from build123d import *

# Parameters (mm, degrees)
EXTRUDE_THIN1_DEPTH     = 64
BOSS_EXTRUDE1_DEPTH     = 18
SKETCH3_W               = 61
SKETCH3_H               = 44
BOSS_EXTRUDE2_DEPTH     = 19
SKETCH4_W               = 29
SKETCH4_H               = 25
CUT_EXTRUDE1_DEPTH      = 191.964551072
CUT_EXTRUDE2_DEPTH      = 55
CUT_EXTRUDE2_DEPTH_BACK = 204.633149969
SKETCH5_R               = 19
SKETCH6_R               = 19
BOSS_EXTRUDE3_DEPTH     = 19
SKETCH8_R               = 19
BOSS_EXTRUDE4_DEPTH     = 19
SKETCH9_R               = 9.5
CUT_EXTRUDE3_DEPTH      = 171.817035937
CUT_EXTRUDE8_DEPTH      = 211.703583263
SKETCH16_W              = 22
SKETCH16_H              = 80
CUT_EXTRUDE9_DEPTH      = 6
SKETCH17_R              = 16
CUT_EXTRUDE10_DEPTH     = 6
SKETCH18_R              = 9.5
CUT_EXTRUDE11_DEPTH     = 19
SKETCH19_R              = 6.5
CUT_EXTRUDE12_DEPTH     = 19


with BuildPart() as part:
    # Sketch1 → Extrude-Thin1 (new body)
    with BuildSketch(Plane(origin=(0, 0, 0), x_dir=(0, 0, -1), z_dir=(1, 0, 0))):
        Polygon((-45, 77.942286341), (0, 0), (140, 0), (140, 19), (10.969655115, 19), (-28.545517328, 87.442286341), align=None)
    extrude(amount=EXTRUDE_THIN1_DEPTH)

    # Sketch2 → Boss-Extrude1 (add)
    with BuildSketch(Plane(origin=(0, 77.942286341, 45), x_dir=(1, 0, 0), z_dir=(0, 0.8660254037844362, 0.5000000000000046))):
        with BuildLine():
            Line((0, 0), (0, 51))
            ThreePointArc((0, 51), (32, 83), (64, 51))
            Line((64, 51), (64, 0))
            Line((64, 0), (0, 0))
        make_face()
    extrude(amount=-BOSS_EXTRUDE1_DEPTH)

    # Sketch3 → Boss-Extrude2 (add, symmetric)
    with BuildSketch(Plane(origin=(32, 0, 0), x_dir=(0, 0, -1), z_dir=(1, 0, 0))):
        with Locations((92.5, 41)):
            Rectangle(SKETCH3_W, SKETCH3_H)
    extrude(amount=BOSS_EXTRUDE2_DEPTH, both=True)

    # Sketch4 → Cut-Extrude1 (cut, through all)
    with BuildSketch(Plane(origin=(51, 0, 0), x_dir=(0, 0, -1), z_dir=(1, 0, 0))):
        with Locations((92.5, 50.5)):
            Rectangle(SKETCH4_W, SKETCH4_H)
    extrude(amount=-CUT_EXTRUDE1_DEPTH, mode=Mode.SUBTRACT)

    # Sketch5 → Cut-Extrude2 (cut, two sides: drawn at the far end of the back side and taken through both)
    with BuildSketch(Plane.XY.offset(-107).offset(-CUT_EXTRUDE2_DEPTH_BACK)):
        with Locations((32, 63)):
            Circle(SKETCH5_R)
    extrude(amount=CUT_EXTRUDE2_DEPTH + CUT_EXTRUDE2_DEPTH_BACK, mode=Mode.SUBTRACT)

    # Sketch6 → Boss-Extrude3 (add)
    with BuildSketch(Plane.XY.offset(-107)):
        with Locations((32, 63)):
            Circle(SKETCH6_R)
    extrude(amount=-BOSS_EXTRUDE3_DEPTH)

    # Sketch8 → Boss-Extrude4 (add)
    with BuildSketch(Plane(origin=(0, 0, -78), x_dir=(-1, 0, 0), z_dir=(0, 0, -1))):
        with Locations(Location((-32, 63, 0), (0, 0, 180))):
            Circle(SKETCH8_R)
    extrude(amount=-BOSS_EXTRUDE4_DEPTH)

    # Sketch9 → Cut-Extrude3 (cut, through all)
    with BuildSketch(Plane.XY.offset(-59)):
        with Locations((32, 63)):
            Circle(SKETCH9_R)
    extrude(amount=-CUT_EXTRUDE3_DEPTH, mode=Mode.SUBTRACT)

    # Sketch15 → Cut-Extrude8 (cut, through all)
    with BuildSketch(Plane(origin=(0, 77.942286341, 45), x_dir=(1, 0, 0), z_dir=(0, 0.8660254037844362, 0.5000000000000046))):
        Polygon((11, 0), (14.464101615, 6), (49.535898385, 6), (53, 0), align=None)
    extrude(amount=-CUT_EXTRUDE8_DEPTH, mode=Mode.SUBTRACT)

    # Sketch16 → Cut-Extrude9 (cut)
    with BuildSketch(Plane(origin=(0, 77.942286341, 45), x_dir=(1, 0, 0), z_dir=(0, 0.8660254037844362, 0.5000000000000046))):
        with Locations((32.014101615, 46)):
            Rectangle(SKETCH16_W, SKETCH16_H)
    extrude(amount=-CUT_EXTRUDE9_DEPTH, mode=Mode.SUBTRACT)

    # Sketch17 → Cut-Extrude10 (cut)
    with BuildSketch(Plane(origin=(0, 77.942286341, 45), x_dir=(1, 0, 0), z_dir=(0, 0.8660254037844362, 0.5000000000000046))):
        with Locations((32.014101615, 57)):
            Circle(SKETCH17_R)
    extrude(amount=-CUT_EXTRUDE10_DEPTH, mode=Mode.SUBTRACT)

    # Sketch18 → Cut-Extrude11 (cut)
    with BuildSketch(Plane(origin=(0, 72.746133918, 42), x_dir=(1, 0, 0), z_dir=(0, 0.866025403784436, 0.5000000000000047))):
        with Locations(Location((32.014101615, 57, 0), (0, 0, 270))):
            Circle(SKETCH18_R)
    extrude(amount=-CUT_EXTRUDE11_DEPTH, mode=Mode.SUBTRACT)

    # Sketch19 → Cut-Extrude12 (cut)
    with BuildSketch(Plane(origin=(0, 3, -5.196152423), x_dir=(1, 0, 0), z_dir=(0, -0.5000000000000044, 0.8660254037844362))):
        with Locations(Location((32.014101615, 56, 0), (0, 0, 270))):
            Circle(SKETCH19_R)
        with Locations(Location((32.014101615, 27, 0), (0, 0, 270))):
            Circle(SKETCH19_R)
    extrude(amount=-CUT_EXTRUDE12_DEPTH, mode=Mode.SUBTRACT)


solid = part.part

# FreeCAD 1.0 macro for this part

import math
import FreeCAD as App
import Part
import Sketcher

V = App.Vector
Q = App.Units.Quantity

doc = App.newDocument("Part")
body = doc.addObject("PartDesign::Body", "Body")

sketch1 = body.newObject("Sketcher::SketchObject", "Sketch")
sketch1.AttachmentSupport = (doc.getObject("YZ_Plane"), [""])
sketch1.MapMode = "FlatFace"
sketch1.addGeometry(Part.LineSegment(V(77.942286, 45, 0), V(0, 0, 0)), False)
sketch1.addGeometry(Part.LineSegment(V(0, 0, 0), V(0, -140, 0)), False)
sketch1.addGeometry(Part.LineSegment(V(0, -140, 0), V(19, -140, 0)), False)
sketch1.addGeometry(Part.LineSegment(V(19, -140, 0), V(19, -10.969655, 0)), False)
sketch1.addGeometry(Part.LineSegment(V(19, -10.969655, 0), V(87.442286, 28.545517, 0)), False)
sketch1.addGeometry(Part.LineSegment(V(87.442286, 28.545517, 0), V(77.942286, 45, 0)), False)
sketch1.addConstraint(Sketcher.Constraint("Coincident", 0, 2, 1, 1))
sketch1.addConstraint(Sketcher.Constraint("Coincident", 1, 2, 2, 1))
sketch1.addConstraint(Sketcher.Constraint("Coincident", 2, 2, 3, 1))
sketch1.addConstraint(Sketcher.Constraint("Coincident", 3, 2, 4, 1))
sketch1.addConstraint(Sketcher.Constraint("Coincident", 4, 2, 5, 1))
sketch1.addConstraint(Sketcher.Constraint("Coincident", 5, 2, 0, 1))
sketch1.addConstraint(Sketcher.Constraint("Vertical", 1))
sketch1.addConstraint(Sketcher.Constraint("Horizontal", 2))
sketch1.addConstraint(Sketcher.Constraint("Vertical", 3))
sketch1.addConstraint(Sketcher.Constraint("Coincident", 0, 2, -1, 1))
sketch1.addConstraint(Sketcher.Constraint("Parallel", 0, 4))
sketch1.addConstraint(Sketcher.Constraint("Perpendicular", 4, 5))
sketch1.addConstraint(Sketcher.Constraint("DistanceX", 2, 1, 2, 2, Q("19 mm")))
sketch1.addConstraint(Sketcher.Constraint("DistanceY", 1, 2, 1, 1, Q("140 mm")))
sketch1.addConstraint(Sketcher.Constraint("Angle", 0, Q("-150 deg")))
sketch1.addConstraint(Sketcher.Constraint("Distance", 0, Q("90 mm")))
sketch1.addConstraint(Sketcher.Constraint("Distance", 5, Q("19 mm")))
pad1 = body.newObject("PartDesign::Pad", "Pad")
pad1.Profile = sketch1
pad1.Length = 64

sketch2 = body.newObject("Sketcher::SketchObject", "Sketch001")
sketch2.Placement = App.Placement(V(0, 77.942286, 45), App.Rotation(V(1, 0, 0), V(0, 0.5, -0.866025404), V(0, 0.866025404, 0.5), "ZXY"))
sketch2.addGeometry(Part.LineSegment(V(0, 51, 0), V(0, 0, 0)), False)
sketch2.addGeometry(Part.LineSegment(V(0, 0, 0), V(64, 0, 0)), False)
sketch2.addGeometry(Part.LineSegment(V(64, 0, 0), V(64, 51, 0)), False)
sketch2.addGeometry(Part.ArcOfCircle(Part.Circle(V(32, 51, 0), V(0, 0, 1), 32), math.radians(0), math.radians(180)), False)
sketch2.addConstraint(Sketcher.Constraint("Coincident", 0, 2, 1, 1))
sketch2.addConstraint(Sketcher.Constraint("Coincident", 1, 2, 2, 1))
sketch2.addConstraint(Sketcher.Constraint("Tangent", 2, 2, 3, 1))
sketch2.addConstraint(Sketcher.Constraint("Tangent", 3, 2, 0, 1))
sketch2.addConstraint(Sketcher.Constraint("Vertical", 0))
sketch2.addConstraint(Sketcher.Constraint("Horizontal", 1))
sketch2.addConstraint(Sketcher.Constraint("Vertical", 2))
sketch2.addConstraint(Sketcher.Constraint("Coincident", 0, 2, -1, 1))
sketch2.addConstraint(Sketcher.Constraint("Radius", 3, Q("32 mm")))
sketch2.addConstraint(Sketcher.Constraint("DistanceY", 0, 2, 0, 1, Q("51 mm")))
pad2 = body.newObject("PartDesign::Pad", "Pad001")
pad2.Profile = sketch2
pad2.Length = 18
pad2.Reversed = True

sketch3 = body.newObject("Sketcher::SketchObject", "Sketch002")
sketch3.AttachmentSupport = (doc.getObject("YZ_Plane"), [""])
sketch3.MapMode = "FlatFace"
sketch3.AttachmentOffset = App.Placement(V(0, 0, 32), App.Rotation())
sketch3.addGeometry(Part.LineSegment(V(63, -62, 0), V(19, -62, 0)), False)
sketch3.addGeometry(Part.LineSegment(V(19, -62, 0), V(19, -123, 0)), False)
sketch3.addGeometry(Part.LineSegment(V(19, -123, 0), V(63, -123, 0)), False)
sketch3.addGeometry(Part.LineSegment(V(63, -123, 0), V(63, -62, 0)), False)
sketch3.addConstraint(Sketcher.Constraint("Coincident", 0, 2, 1, 1))
sketch3.addConstraint(Sketcher.Constraint("Coincident", 1, 2, 2, 1))
sketch3.addConstraint(Sketcher.Constraint("Coincident", 2, 2, 3, 1))
sketch3.addConstraint(Sketcher.Constraint("Coincident", 3, 2, 0, 1))
sketch3.addConstraint(Sketcher.Constraint("Horizontal", 0))
sketch3.addConstraint(Sketcher.Constraint("Vertical", 1))
sketch3.addConstraint(Sketcher.Constraint("Horizontal", 2))
sketch3.addConstraint(Sketcher.Constraint("Vertical", 3))
sketch3.addConstraint(Sketcher.Constraint("DistanceX", 0, 2, 0, 1, Q("44 mm")))
sketch3.addConstraint(Sketcher.Constraint("DistanceY", 1, 2, 1, 1, Q("61 mm")))
sketch3.addConstraint(Sketcher.Constraint("DistanceX", -1, 1, 0, 2, Q("19 mm")))
sketch3.addConstraint(Sketcher.Constraint("DistanceY", 0, 2, -1, 1, Q("62 mm")))
pad3 = body.newObject("PartDesign::Pad", "Pad002")
pad3.Profile = sketch3
pad3.Length = 38
pad3.Midplane = True

sketch4 = body.newObject("Sketcher::SketchObject", "Sketch003")
sketch4.AttachmentSupport = (doc.getObject("YZ_Plane"), [""])
sketch4.MapMode = "FlatFace"
sketch4.AttachmentOffset = App.Placement(V(0, 0, 51), App.Rotation())
sketch4.addGeometry(Part.LineSegment(V(63, -78, 0), V(38, -78, 0)), False)
sketch4.addGeometry(Part.LineSegment(V(38, -78, 0), V(38, -107, 0)), False)
sketch4.addGeometry(Part.LineSegment(V(38, -107, 0), V(63, -107, 0)), False)
sketch4.addGeometry(Part.LineSegment(V(63, -107, 0), V(63, -78, 0)), False)
sketch4.addConstraint(Sketcher.Constraint("Coincident", 0, 2, 1, 1))
sketch4.addConstraint(Sketcher.Constraint("Coincident", 1, 2, 2, 1))
sketch4.addConstraint(Sketcher.Constraint("Coincident", 2, 2, 3, 1))
sketch4.addConstraint(Sketcher.Constraint("Coincident", 3, 2, 0, 1))
sketch4.addConstraint(Sketcher.Constraint("Horizontal", 0))
sketch4.addConstraint(Sketcher.Constraint("Vertical", 1))
sketch4.addConstraint(Sketcher.Constraint("Horizontal", 2))
sketch4.addConstraint(Sketcher.Constraint("Vertical", 3))
sketch4.addConstraint(Sketcher.Constraint("DistanceX", 0, 2, 0, 1, Q("25 mm")))
sketch4.addConstraint(Sketcher.Constraint("DistanceY", 1, 2, 1, 1, Q("29 mm")))
sketch4.addConstraint(Sketcher.Constraint("DistanceX", -1, 1, 0, 2, Q("38 mm")))
sketch4.addConstraint(Sketcher.Constraint("DistanceY", 0, 2, -1, 1, Q("78 mm")))
pocket1 = body.newObject("PartDesign::Pocket", "Pocket")
pocket1.Profile = sketch4
pocket1.Type = "ThroughAll"

sketch5 = body.newObject("Sketcher::SketchObject", "Sketch004")
sketch5.AttachmentSupport = (doc.getObject("XY_Plane"), [""])
sketch5.MapMode = "FlatFace"
sketch5.AttachmentOffset = App.Placement(V(0, 0, -107), App.Rotation())
sketch5.addGeometry(Part.Circle(V(32, 63, 0), V(0, 0, 1), 19), False)
sketch5.addConstraint(Sketcher.Constraint("Diameter", 0, Q("38 mm")))
sketch5.addConstraint(Sketcher.Constraint("DistanceX", -1, 1, 0, 3, Q("32 mm")))
sketch5.addConstraint(Sketcher.Constraint("DistanceY", -1, 1, 0, 3, Q("63 mm")))
pocket2 = body.newObject("PartDesign::Pocket", "Pocket001")
pocket2.Profile = sketch5
pocket2.Type = "TwoLengths"
pocket2.Length = 55
pocket2.Length2 = 204.63315
pocket2.Reversed = True

sketch6 = body.newObject("Sketcher::SketchObject", "Sketch005")
sketch6.AttachmentSupport = (doc.getObject("XY_Plane"), [""])
sketch6.MapMode = "FlatFace"
sketch6.AttachmentOffset = App.Placement(V(0, 0, -107), App.Rotation())
sketch6.addGeometry(Part.Circle(V(32, 63, 0), V(0, 0, 1), 19), False)
sketch6.addConstraint(Sketcher.Constraint("Diameter", 0, Q("38 mm")))
sketch6.addConstraint(Sketcher.Constraint("DistanceX", -1, 1, 0, 3, Q("32 mm")))
sketch6.addConstraint(Sketcher.Constraint("DistanceY", -1, 1, 0, 3, Q("63 mm")))
pad4 = body.newObject("PartDesign::Pad", "Pad003")
pad4.Profile = sketch6
pad4.Length = 19
pad4.Reversed = True

sketch7 = body.newObject("Sketcher::SketchObject", "Sketch006")
sketch7.AttachmentSupport = (doc.getObject("XY_Plane"), [""])
sketch7.MapMode = "FlatFace"
sketch7.AttachmentOffset = App.Placement(V(0, 0, -78), App.Rotation())
sketch7.addGeometry(Part.Circle(V(32, 63, 0), V(0, 0, 1), 19), False)
sketch7.addConstraint(Sketcher.Constraint("Diameter", 0, Q("38 mm")))
sketch7.addConstraint(Sketcher.Constraint("DistanceX", -1, 1, 0, 3, Q("32 mm")))
sketch7.addConstraint(Sketcher.Constraint("DistanceY", -1, 1, 0, 3, Q("63 mm")))
pad5 = body.newObject("PartDesign::Pad", "Pad004")
pad5.Profile = sketch7
pad5.Length = 19

sketch8 = body.newObject("Sketcher::SketchObject", "Sketch007")
sketch8.AttachmentSupport = (doc.getObject("XY_Plane"), [""])
sketch8.MapMode = "FlatFace"
sketch8.AttachmentOffset = App.Placement(V(0, 0, -59), App.Rotation())
sketch8.addGeometry(Part.Circle(V(32, 63, 0), V(0, 0, 1), 9.5), False)
sketch8.addConstraint(Sketcher.Constraint("Diameter", 0, Q("19 mm")))
sketch8.addConstraint(Sketcher.Constraint("DistanceX", -1, 1, 0, 3, Q("32 mm")))
sketch8.addConstraint(Sketcher.Constraint("DistanceY", -1, 1, 0, 3, Q("63 mm")))
pocket3 = body.newObject("PartDesign::Pocket", "Pocket002")
pocket3.Profile = sketch8
pocket3.Type = "ThroughAll"

sketch9 = body.newObject("Sketcher::SketchObject", "Sketch008")
sketch9.Placement = App.Placement(V(0, 77.942286, 45), App.Rotation(V(1, 0, 0), V(0, 0.5, -0.866025404), V(0, 0.866025404, 0.5), "ZXY"))
sketch9.addGeometry(Part.LineSegment(V(14.464102, 6, 0), V(11, 0, 0)), False)
sketch9.addGeometry(Part.LineSegment(V(11, 0, 0), V(53, 0, 0)), False)
sketch9.addGeometry(Part.LineSegment(V(53, 0, 0), V(49.535898, 6, 0)), False)
sketch9.addGeometry(Part.LineSegment(V(49.535898, 6, 0), V(14.464102, 6, 0)), False)
sketch9.addConstraint(Sketcher.Constraint("Coincident", 0, 2, 1, 1))
sketch9.addConstraint(Sketcher.Constraint("Coincident", 1, 2, 2, 1))
sketch9.addConstraint(Sketcher.Constraint("Coincident", 2, 2, 3, 1))
sketch9.addConstraint(Sketcher.Constraint("Coincident", 3, 2, 0, 1))
sketch9.addConstraint(Sketcher.Constraint("Horizontal", 1))
sketch9.addConstraint(Sketcher.Constraint("Horizontal", 3))
sketch9.addConstraint(Sketcher.Constraint("PointOnObject", 0, 2, -1))
sketch9.addConstraint(Sketcher.Constraint("Equal", 0, 2))
sketch9.addConstraint(Sketcher.Constraint("DistanceX", 1, 1, 1, 2, Q("42 mm")))
sketch9.addConstraint(Sketcher.Constraint("Angle", 0, Q("-120 deg")))
sketch9.addConstraint(Sketcher.Constraint("DistanceX", -1, 1, 0, 2, Q("11 mm")))
sketch9.addConstraint(Sketcher.Constraint("DistanceY", -1, 1, 2, 2, Q("6 mm")))
pocket4 = body.newObject("PartDesign::Pocket", "Pocket003")
pocket4.Profile = sketch9
pocket4.Type = "ThroughAll"

sketch10 = body.newObject("Sketcher::SketchObject", "Sketch009")
sketch10.Placement = App.Placement(V(0, 77.942286, 45), App.Rotation(V(1, 0, 0), V(0, 0.5, -0.866025404), V(0, 0.866025404, 0.5), "ZXY"))
sketch10.addGeometry(Part.LineSegment(V(21.014102, 86, 0), V(21.014102, 6, 0)), False)
sketch10.addGeometry(Part.LineSegment(V(21.014102, 6, 0), V(43.014102, 6, 0)), False)
sketch10.addGeometry(Part.LineSegment(V(43.014102, 6, 0), V(43.014102, 86, 0)), False)
sketch10.addGeometry(Part.LineSegment(V(43.014102, 86, 0), V(21.014102, 86, 0)), False)
sketch10.addConstraint(Sketcher.Constraint("Coincident", 0, 2, 1, 1))
sketch10.addConstraint(Sketcher.Constraint("Coincident", 1, 2, 2, 1))
sketch10.addConstraint(Sketcher.Constraint("Coincident", 2, 2, 3, 1))
sketch10.addConstraint(Sketcher.Constraint("Coincident", 3, 2, 0, 1))
sketch10.addConstraint(Sketcher.Constraint("Vertical", 0))
sketch10.addConstraint(Sketcher.Constraint("Horizontal", 1))
sketch10.addConstraint(Sketcher.Constraint("Vertical", 2))
sketch10.addConstraint(Sketcher.Constraint("Horizontal", 3))
sketch10.addConstraint(Sketcher.Constraint("DistanceX", 1, 1, 1, 2, Q("22 mm")))
sketch10.addConstraint(Sketcher.Constraint("DistanceY", 0, 2, 0, 1, Q("80 mm")))
sketch10.addConstraint(Sketcher.Constraint("DistanceY", -1, 1, 0, 2, Q("6 mm")))
sketch10.addConstraint(Sketcher.Constraint("DistanceX", -1, 1, 0, 2, Q("21.014102 mm")))
pocket5 = body.newObject("PartDesign::Pocket", "Pocket004")
pocket5.Profile = sketch10
pocket5.Length = 6

sketch11 = body.newObject("Sketcher::SketchObject", "Sketch010")
sketch11.Placement = App.Placement(V(0, 77.942286, 45), App.Rotation(V(1, 0, 0), V(0, 0.5, -0.866025404), V(0, 0.866025404, 0.5), "ZXY"))
sketch11.addGeometry(Part.Circle(V(32.014102, 57, 0), V(0, 0, 1), 16), False)
sketch11.addConstraint(Sketcher.Constraint("Diameter", 0, Q("32 mm")))
sketch11.addConstraint(Sketcher.Constraint("DistanceY", -1, 1, 0, 3, Q("57 mm")))
sketch11.addConstraint(Sketcher.Constraint("DistanceX", -1, 1, 0, 3, Q("32.014102 mm")))
pocket6 = body.newObject("PartDesign::Pocket", "Pocket005")
pocket6.Profile = sketch11
pocket6.Length = 6

sketch12 = body.newObject("Sketcher::SketchObject", "Sketch011")
sketch12.Placement = App.Placement(V(0, 72.746134, 42), App.Rotation(V(1, 0, 0), V(0, 0.5, -0.866025404), V(0, 0.866025404, 0.5), "ZXY"))
sketch12.addGeometry(Part.Circle(V(32.014102, 57, 0), V(0, 0, 1), 9.5), False)
sketch12.addConstraint(Sketcher.Constraint("Diameter", 0, Q("19 mm")))
sketch12.addConstraint(Sketcher.Constraint("DistanceY", -1, 1, 0, 3, Q("57 mm")))
sketch12.addConstraint(Sketcher.Constraint("DistanceX", -1, 1, 0, 3, Q("32.014102 mm")))
pocket7 = body.newObject("PartDesign::Pocket", "Pocket006")
pocket7.Profile = sketch12
pocket7.Length = 19

sketch13 = body.newObject("Sketcher::SketchObject", "Sketch012")
sketch13.Placement = App.Placement(V(0, 3, -5.196152), App.Rotation(V(1, 0, 0), V(0, 0.866025404, 0.5), V(0, -0.5, 0.866025404), "ZXY"))
sketch13.addGeometry(Part.Circle(V(32.014102, 56, 0), V(0, 0, 1), 6.5), False)
sketch13.addGeometry(Part.Circle(V(32.014102, 27, 0), V(0, 0, 1), 6.5), False)
sketch13.addConstraint(Sketcher.Constraint("Equal", 0, 1))
sketch13.addConstraint(Sketcher.Constraint("Vertical", 0, 3, 1, 3))
sketch13.addConstraint(Sketcher.Constraint("Diameter", 0, Q("13 mm")))
sketch13.addConstraint(Sketcher.Constraint("DistanceY", -1, 1, 0, 3, Q("56 mm")))
sketch13.addConstraint(Sketcher.Constraint("DistanceY", -1, 1, 1, 3, Q("27 mm")))
sketch13.addConstraint(Sketcher.Constraint("DistanceX", -1, 1, 0, 3, Q("32.014102 mm")))
pocket8 = body.newObject("PartDesign::Pocket", "Pocket007")
pocket8.Profile = sketch13
pocket8.Length = 19

doc.recompute()
